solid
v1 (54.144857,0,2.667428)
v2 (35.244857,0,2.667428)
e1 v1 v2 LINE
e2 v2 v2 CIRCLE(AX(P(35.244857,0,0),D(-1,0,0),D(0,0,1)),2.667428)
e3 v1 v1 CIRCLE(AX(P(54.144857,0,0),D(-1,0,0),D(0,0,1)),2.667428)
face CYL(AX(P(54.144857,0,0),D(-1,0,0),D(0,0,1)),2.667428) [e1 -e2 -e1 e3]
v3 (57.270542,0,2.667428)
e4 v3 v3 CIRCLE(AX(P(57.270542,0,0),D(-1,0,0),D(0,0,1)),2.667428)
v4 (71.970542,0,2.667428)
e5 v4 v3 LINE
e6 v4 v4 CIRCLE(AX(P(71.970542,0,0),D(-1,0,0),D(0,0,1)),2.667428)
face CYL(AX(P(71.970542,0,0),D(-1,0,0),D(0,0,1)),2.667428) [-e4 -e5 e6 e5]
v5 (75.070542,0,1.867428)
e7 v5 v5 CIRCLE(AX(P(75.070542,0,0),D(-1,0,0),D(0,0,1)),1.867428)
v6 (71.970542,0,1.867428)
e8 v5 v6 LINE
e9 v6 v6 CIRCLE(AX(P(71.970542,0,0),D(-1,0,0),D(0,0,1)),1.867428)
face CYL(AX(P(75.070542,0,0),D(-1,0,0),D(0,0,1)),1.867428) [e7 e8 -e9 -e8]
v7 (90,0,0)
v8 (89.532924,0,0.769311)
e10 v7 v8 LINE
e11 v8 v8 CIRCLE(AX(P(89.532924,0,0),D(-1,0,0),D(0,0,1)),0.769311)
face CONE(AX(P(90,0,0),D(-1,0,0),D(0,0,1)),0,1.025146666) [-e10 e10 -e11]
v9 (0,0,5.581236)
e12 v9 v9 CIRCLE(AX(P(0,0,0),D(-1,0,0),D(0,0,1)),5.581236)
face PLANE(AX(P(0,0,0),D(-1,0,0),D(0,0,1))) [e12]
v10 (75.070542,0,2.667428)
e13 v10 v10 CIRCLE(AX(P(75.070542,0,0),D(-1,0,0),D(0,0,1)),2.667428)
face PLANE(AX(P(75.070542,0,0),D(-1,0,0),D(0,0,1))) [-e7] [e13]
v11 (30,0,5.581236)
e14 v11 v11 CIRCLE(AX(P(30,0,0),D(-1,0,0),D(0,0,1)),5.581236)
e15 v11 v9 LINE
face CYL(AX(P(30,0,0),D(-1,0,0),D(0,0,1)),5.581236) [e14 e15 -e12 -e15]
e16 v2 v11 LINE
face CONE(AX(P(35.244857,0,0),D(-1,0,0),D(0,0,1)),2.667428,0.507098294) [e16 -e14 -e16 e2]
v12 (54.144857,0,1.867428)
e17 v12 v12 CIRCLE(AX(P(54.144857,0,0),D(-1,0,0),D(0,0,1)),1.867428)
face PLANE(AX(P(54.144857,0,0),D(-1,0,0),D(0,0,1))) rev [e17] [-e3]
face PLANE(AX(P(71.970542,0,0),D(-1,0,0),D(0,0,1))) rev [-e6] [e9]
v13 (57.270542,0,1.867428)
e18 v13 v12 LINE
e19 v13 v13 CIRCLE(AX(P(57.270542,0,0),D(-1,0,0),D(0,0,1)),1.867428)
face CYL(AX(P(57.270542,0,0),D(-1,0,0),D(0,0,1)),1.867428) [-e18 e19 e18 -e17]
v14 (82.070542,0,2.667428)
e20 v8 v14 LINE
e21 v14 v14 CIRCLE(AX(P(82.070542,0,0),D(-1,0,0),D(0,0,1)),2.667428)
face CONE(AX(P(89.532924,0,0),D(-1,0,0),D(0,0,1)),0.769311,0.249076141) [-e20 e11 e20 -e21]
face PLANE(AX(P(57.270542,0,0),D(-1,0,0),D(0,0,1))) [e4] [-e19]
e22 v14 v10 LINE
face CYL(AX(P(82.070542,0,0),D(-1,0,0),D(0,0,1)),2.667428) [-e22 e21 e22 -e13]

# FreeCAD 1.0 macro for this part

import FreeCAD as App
import Part
import Sketcher
from FreeCAD import Vector
Q = App.Units.Quantity

doc = App.newDocument("Part")
body = doc.addObject("PartDesign::Body", "Body")

# Sketch on XZ plane
sketch1 = doc.addObject("Sketcher::SketchObject", "Sketch")
body.addObject(sketch1)
sketch1.AttachmentSupport = (doc.XZ_Plane, [""])
sketch1.MapMode = "FlatFace"
sketch1.addGeometry([
    Part.LineSegment(Vector(30, 5.581236, 0), Vector(0, 5.581236, 0)),  # 0
    Part.LineSegment(Vector(0, 5.581236, 0), Vector(0, 0, 0)),  # 1
    Part.LineSegment(Vector(0, 0, 0), Vector(90, 0, 0)),  # 2
    Part.LineSegment(Vector(90, 0, 0), Vector(89.532924, 0.769311, 0)),  # 3
    Part.LineSegment(Vector(89.532924, 0.769311, 0), Vector(82.070542, 2.667428, 0)),  # 4
    Part.LineSegment(Vector(82.070542, 2.667428, 0), Vector(75.070542, 2.667428, 0)),  # 5
    Part.LineSegment(Vector(75.070542, 2.667428, 0), Vector(75.070542, 1.867428, 0)),  # 6
    Part.LineSegment(Vector(75.070542, 1.867428, 0), Vector(71.970542, 1.867428, 0)),  # 7
    Part.LineSegment(Vector(71.970542, 1.867428, 0), Vector(71.970542, 2.667428, 0)),  # 8
    Part.LineSegment(Vector(71.970542, 2.667428, 0), Vector(57.270542, 2.667428, 0)),  # 9
    Part.LineSegment(Vector(57.270542, 2.667428, 0), Vector(57.270542, 1.867428, 0)),  # 10
    Part.LineSegment(Vector(57.270542, 1.867428, 0), Vector(54.144857, 1.867428, 0)),  # 11
    Part.LineSegment(Vector(54.144857, 1.867428, 0), Vector(54.144857, 2.667428, 0)),  # 12
    Part.LineSegment(Vector(54.144857, 2.667428, 0), Vector(35.244857, 2.667428, 0)),  # 13
    Part.LineSegment(Vector(35.244857, 2.667428, 0), Vector(30, 5.581236, 0)),  # 14
], False)
sketch1.addConstraint([
    Sketcher.Constraint("Coincident", 0, 2, 1, 1),
    Sketcher.Constraint("Coincident", 1, 2, 2, 1),
    Sketcher.Constraint("Coincident", 2, 2, 3, 1),
    Sketcher.Constraint("Coincident", 3, 2, 4, 1),
    Sketcher.Constraint("Coincident", 4, 2, 5, 1),
    Sketcher.Constraint("Coincident", 5, 2, 6, 1),
    Sketcher.Constraint("Coincident", 6, 2, 7, 1),
    Sketcher.Constraint("Coincident", 7, 2, 8, 1),
    Sketcher.Constraint("Coincident", 8, 2, 9, 1),
    Sketcher.Constraint("Coincident", 9, 2, 10, 1),
    Sketcher.Constraint("Coincident", 10, 2, 11, 1),
    Sketcher.Constraint("Coincident", 11, 2, 12, 1),
    Sketcher.Constraint("Coincident", 12, 2, 13, 1),
    Sketcher.Constraint("Coincident", 13, 2, 14, 1),
    Sketcher.Constraint("Coincident", 14, 2, 0, 1),
    Sketcher.Constraint("Horizontal", 0),
    Sketcher.Constraint("Vertical", 1),
    Sketcher.Constraint("Horizontal", 2),
    Sketcher.Constraint("Horizontal", 5),
    Sketcher.Constraint("Vertical", 6),
    Sketcher.Constraint("Horizontal", 7),
    Sketcher.Constraint("Vertical", 8),
    Sketcher.Constraint("Horizontal", 9),
    Sketcher.Constraint("Vertical", 10),
    Sketcher.Constraint("Horizontal", 11),
    Sketcher.Constraint("Vertical", 12),
    Sketcher.Constraint("Horizontal", 13),
    Sketcher.Constraint("Coincident", 1, 2, -1, 1),
    Sketcher.Constraint("Horizontal", 5, 2, 8, 2),
    Sketcher.Constraint("Horizontal", 7, 2, 10, 2),
    Sketcher.Constraint("Horizontal", 9, 2, 12, 2),
    Sketcher.Constraint("DistanceX", 0, 2, 0, 1, Q("30 mm")),
    Sketcher.Constraint("DistanceX", 2, 1, 2, 2, Q("90 mm")),
    Sketcher.Constraint("DistanceX", 5, 2, 5, 1, Q("7 mm")),
    Sketcher.Constraint("DistanceX", 7, 2, 7, 1, Q("3.1 mm")),
    Sketcher.Constraint("DistanceX", 9, 2, 9, 1, Q("14.7 mm")),
    Sketcher.Constraint("DistanceX", 13, 2, 13, 1, Q("18.9 mm")),
    Sketcher.Constraint("DistanceY", 6, 2, 6, 1, Q("0.8 mm")),
    Sketcher.Constraint("Distance", 3, Q("0.9 mm")),
    Sketcher.Constraint("Distance", 4, Q("7.7 mm")),
    Sketcher.Constraint("Distance", 14, Q("5.9999 mm")),
    Sketcher.Constraint("DistanceX", 11, 2, 11, 1, Q("3.125685 mm")),
    Sketcher.Constraint("DistanceY", 1, 2, 1, 1, Q("5.581236 mm")),
    Sketcher.Constraint("DistanceY", -1, 1, 3, 2, Q("0.769311 mm")),
])
revolution = doc.addObject("PartDesign::Revolution", "Revolution")
body.addObject(revolution)
revolution.Profile = sketch1
revolution.ReferenceAxis = (sketch1, ["H_Axis"])
revolution.Angle = 360

doc.recompute()
